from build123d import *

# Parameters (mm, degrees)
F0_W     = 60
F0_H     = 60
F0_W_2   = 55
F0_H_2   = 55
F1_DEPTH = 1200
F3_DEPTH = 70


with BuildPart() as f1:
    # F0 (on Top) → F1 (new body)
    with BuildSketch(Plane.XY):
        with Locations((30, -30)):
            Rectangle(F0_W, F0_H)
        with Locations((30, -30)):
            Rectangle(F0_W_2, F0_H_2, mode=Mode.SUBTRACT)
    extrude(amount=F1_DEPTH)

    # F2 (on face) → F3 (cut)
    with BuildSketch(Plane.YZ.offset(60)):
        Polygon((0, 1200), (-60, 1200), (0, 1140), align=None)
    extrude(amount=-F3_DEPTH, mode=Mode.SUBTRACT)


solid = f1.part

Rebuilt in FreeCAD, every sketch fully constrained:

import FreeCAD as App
import Part
import Sketcher
Q = App.Units.Quantity


def add_polygon(sketch, points):
    """Adds a closed chain of lines whose ends are joined by coincident constraints."""
    first, n = sketch.GeometryCount, len(points)
    for a, b in zip(points, points[1:] + points[:1]):
        sketch.addGeometry(Part.LineSegment(App.Vector(*a, 0), App.Vector(*b, 0)), False)
    for i in range(n):
        sketch.addConstraint(Sketcher.Constraint("Coincident", first + i, 2, first + (i + 1) % n, 1))

doc = App.newDocument("Part")
params = doc.addObject("Spreadsheet::Sheet", "Params")
for row, (alias, value) in enumerate([
    ("sketch1_width", "60 mm"),
    ("sketch1_width2", "55 mm"),
    ("pad1_length", "1200 mm"),
    ("sketch2_width", "60 mm"),
    ("pocket1_length", "70 mm"),
], start=1):
    params.set(f"A{row}", alias)
    params.set(f"B{row}", "=" + value)
    params.setAlias(f"B{row}", alias)

body = doc.addObject("PartDesign::Body", "Body")

# Sketch on XY plane
sketch1 = body.newObject("Sketcher::SketchObject", "Sketch")
sketch1.AttachmentSupport = (doc.getObject("XY_Plane"), [""])
sketch1.MapMode = "FlatFace"
add_polygon(sketch1, [(0, 0), (0, -60), (60, -60), (60, 0)])  # lines 0-3
add_polygon(sketch1, [(58, -58), (2, -58), (2, -2), (58, -2)])  # lines 4-7
sketch1.addConstraint(Sketcher.Constraint("Vertical", 0))
sketch1.addConstraint(Sketcher.Constraint("Horizontal", 1))
sketch1.addConstraint(Sketcher.Constraint("Vertical", 2))
sketch1.addConstraint(Sketcher.Constraint("Horizontal", 3))
sketch1.addConstraint(Sketcher.Constraint("Horizontal", 4))
sketch1.addConstraint(Sketcher.Constraint("Vertical", 5))
sketch1.addConstraint(Sketcher.Constraint("Horizontal", 6))
sketch1.addConstraint(Sketcher.Constraint("Vertical", 7))
sketch1.addConstraint(Sketcher.Constraint("Coincident", 3, 2, -1, 1))
sketch1.addConstraint(Sketcher.Constraint("Equal", 3, 0))
sketch1.addConstraint(Sketcher.Constraint("Equal", 6, 5))
sketch1.addConstraint(Sketcher.Constraint("DistanceX", 1, 1, 1, 2, Q("60 mm")))
sketch1.addConstraint(Sketcher.Constraint("DistanceX", 4, 2, 4, 1, Q("55 mm")))
sketch1.addConstraint(Sketcher.Constraint("DistanceX", -1, 1, 4, 2, Q("2.5 mm")))
sketch1.addConstraint(Sketcher.Constraint("DistanceY", 4, 2, -1, 1, Q("57.5 mm")))
sketch1.setExpression("Constraints[19]", "Params.sketch1_width")
sketch1.setExpression("Constraints[20]", "Params.sketch1_width2")
pad1 = body.newObject("PartDesign::Pad", "Pad")
pad1.Profile = sketch1
pad1.setExpression("Length", "Params.pad1_length")

# Sketch on YZ plane
sketch2 = body.newObject("Sketcher::SketchObject", "Sketch001")
sketch2.AttachmentSupport = (doc.getObject("YZ_Plane"), [""])
sketch2.MapMode = "FlatFace"
sketch2.AttachmentOffset = App.Placement(App.Vector(0, 0, 60), App.Rotation())
add_polygon(sketch2, [(0, 1200), (-60, 1200), (0, 1140)])  # lines 0-2
sketch2.addConstraint(Sketcher.Constraint("Horizontal", 0))
sketch2.addConstraint(Sketcher.Constraint("Vertical", 2))
sketch2.addConstraint(Sketcher.Constraint("PointOnObject", 1, 2, -2))
sketch2.addConstraint(Sketcher.Constraint("Equal", 0, 2))
sketch2.addConstraint(Sketcher.Constraint("DistanceX", 0, 2, 0, 1, Q("60 mm")))
sketch2.addConstraint(Sketcher.Constraint("DistanceY", -1, 1, 0, 2, Q("1200 mm")))
sketch2.setExpression("Constraints[7]", "Params.sketch2_width")
pocket1 = body.newObject("PartDesign::Pocket", "Pocket")
pocket1.Profile = sketch2
pocket1.setExpression("Length", "Params.pocket1_length")

doc.recompute()
